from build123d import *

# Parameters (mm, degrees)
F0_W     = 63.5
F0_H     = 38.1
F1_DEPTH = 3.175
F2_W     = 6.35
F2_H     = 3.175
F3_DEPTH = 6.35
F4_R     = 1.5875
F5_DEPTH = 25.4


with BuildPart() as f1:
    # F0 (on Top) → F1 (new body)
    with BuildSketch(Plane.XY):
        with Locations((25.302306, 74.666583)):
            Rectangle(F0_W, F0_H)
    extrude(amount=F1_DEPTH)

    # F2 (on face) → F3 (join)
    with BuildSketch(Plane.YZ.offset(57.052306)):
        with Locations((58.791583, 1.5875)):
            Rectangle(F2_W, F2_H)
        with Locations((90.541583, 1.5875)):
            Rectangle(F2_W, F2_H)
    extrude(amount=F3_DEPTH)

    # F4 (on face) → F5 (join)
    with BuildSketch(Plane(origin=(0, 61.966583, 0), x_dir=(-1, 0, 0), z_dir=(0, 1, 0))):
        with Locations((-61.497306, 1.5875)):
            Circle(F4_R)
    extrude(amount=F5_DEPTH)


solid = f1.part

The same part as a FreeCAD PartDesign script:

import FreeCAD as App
import Part
import Sketcher

V = App.Vector
Q = App.Units.Quantity


def add_polygon(sketch, points):
    """Adds a closed chain of lines whose ends are joined by coincident constraints."""
    first, n = sketch.GeometryCount, len(points)
    for a, b in zip(points, points[1:] + points[:1]):
        sketch.addGeometry(Part.LineSegment(App.Vector(*a, 0), App.Vector(*b, 0)), False)
    for i in range(n):
        sketch.addConstraint(Sketcher.Constraint("Coincident", first + i, 2, first + (i + 1) % n, 1))

doc = App.newDocument("Part")
params = doc.addObject("Spreadsheet::Sheet", "Params")
for row, (alias, value) in enumerate([
    ("sketch1_width", "2.5 in"),
    ("sketch1_height", "1.5 in"),
    ("pad1_length", "0.125 in"),
    ("sketch2_width", "0.25 in"),
    ("sketch2_height", "0.125 in"),
    ("pad2_length", "0.25 in"),
    ("sketch3_diameter", "0.125 in"),
    ("pad3_length", "1 in"),
], start=1):
    params.set(f"A{row}", alias)
    params.set(f"B{row}", "=" + value)
    params.setAlias(f"B{row}", alias)

body = doc.addObject("PartDesign::Body", "Body")

# Sketch on XY plane
sketch1 = doc.addObject("Sketcher::SketchObject", "Sketch")
body.addObject(sketch1)
sketch1.AttachmentSupport = (doc.XY_Plane, [""])
sketch1.MapMode = "FlatFace"
add_polygon(sketch1, [(-6.447694, 93.716583), (-6.447694, 55.616583), (57.052306, 55.616583), (57.052306, 93.716583)])  # lines 0-3
sketch1.addConstraint([
    Sketcher.Constraint("Vertical", 0),
    Sketcher.Constraint("Horizontal", 1),
    Sketcher.Constraint("Vertical", 2),
    Sketcher.Constraint("Horizontal", 3),
    Sketcher.Constraint("DistanceX", 1, 1, 1, 2, Q("2.5 in")),
    Sketcher.Constraint("DistanceY", 0, 2, 0, 1, Q("1.5 in")),
    Sketcher.Constraint("DistanceX", 0, 2, -1, 1, 6.447694),
    Sketcher.Constraint("DistanceY", -1, 1, 0, 2, 55.616583),
])
sketch1.setExpression("Constraints[8]", "Params.sketch1_width")
sketch1.setExpression("Constraints[9]", "Params.sketch1_height")
pad1 = doc.addObject("PartDesign::Pad", "Pad")
body.addObject(pad1)
pad1.Profile = sketch1
pad1.setExpression("Length", "Params.pad1_length")

# Sketch on YZ plane
sketch2 = doc.addObject("Sketcher::SketchObject", "Sketch001")
body.addObject(sketch2)
sketch2.AttachmentSupport = (doc.YZ_Plane, [""])
sketch2.MapMode = "FlatFace"
sketch2.AttachmentOffset = App.Placement(V(0, 0, 57.052306), App.Rotation())
add_polygon(sketch2, [(55.616583, 3.175), (55.616583, 0), (61.966583, 0), (61.966583, 3.175)])  # lines 0-3
add_polygon(sketch2, [(87.366583, 3.175), (87.366583, 0), (93.716583, 0), (93.716583, 3.175)])  # lines 4-7
sketch2.addConstraint([
    Sketcher.Constraint("Vertical", 0),
    Sketcher.Constraint("Horizontal", 1),
    Sketcher.Constraint("Vertical", 2),
    Sketcher.Constraint("Horizontal", 3),
    Sketcher.Constraint("Vertical", 4),
    Sketcher.Constraint("Horizontal", 5),
    Sketcher.Constraint("Vertical", 6),
    Sketcher.Constraint("Horizontal", 7),
    Sketcher.Constraint("PointOnObject", 0, 2, -1),
    Sketcher.Constraint("PointOnObject", 4, 2, -1),
    Sketcher.Constraint("Horizontal", 3, 2, 6, 2),
    Sketcher.Constraint("Equal", 3, 5),
    Sketcher.Constraint("DistanceX", 1, 2, 4, 2, Q("1 in")),
    Sketcher.Constraint("DistanceX", 1, 1, 1, 2, Q("0.25 in")),
    Sketcher.Constraint("DistanceY", 0, 2, 0, 1, Q("0.125 in")),
    Sketcher.Constraint("DistanceX", -1, 1, 0, 2, 55.616583),
])
sketch2.setExpression("Constraints[21]", "Params.sketch2_width")
sketch2.setExpression("Constraints[22]", "Params.sketch2_height")
pad2 = doc.addObject("PartDesign::Pad", "Pad001")
body.addObject(pad2)
pad2.Profile = sketch2
pad2.setExpression("Length", "Params.pad2_length")

# Sketch on XZ plane
sketch3 = doc.addObject("Sketcher::SketchObject", "Sketch002")
body.addObject(sketch3)
sketch3.AttachmentSupport = (doc.XZ_Plane, [""])
sketch3.MapMode = "FlatFace"
sketch3.AttachmentOffset = App.Placement(V(0, 0, -61.966583), App.Rotation())
sketch3.addGeometry(Part.Circle(V(61.497306, 1.5875, 0), V(0, 0, 1), 1.5875), False)
sketch3.addConstraint([
    Sketcher.Constraint("Diameter", 0, Q("0.125 in")),
    Sketcher.Constraint("DistanceY", -1, 1, 0, 3, Q("0.0625 in")),
    Sketcher.Constraint("DistanceX", -1, 1, 0, 3, 61.497306),
])
sketch3.setExpression("Constraints[0]", "Params.sketch3_diameter")
pad3 = doc.addObject("PartDesign::Pad", "Pad002")
body.addObject(pad3)
pad3.Profile = sketch3
pad3.setExpression("Length", "Params.pad3_length")
pad3.Reversed = True

doc.recompute()
